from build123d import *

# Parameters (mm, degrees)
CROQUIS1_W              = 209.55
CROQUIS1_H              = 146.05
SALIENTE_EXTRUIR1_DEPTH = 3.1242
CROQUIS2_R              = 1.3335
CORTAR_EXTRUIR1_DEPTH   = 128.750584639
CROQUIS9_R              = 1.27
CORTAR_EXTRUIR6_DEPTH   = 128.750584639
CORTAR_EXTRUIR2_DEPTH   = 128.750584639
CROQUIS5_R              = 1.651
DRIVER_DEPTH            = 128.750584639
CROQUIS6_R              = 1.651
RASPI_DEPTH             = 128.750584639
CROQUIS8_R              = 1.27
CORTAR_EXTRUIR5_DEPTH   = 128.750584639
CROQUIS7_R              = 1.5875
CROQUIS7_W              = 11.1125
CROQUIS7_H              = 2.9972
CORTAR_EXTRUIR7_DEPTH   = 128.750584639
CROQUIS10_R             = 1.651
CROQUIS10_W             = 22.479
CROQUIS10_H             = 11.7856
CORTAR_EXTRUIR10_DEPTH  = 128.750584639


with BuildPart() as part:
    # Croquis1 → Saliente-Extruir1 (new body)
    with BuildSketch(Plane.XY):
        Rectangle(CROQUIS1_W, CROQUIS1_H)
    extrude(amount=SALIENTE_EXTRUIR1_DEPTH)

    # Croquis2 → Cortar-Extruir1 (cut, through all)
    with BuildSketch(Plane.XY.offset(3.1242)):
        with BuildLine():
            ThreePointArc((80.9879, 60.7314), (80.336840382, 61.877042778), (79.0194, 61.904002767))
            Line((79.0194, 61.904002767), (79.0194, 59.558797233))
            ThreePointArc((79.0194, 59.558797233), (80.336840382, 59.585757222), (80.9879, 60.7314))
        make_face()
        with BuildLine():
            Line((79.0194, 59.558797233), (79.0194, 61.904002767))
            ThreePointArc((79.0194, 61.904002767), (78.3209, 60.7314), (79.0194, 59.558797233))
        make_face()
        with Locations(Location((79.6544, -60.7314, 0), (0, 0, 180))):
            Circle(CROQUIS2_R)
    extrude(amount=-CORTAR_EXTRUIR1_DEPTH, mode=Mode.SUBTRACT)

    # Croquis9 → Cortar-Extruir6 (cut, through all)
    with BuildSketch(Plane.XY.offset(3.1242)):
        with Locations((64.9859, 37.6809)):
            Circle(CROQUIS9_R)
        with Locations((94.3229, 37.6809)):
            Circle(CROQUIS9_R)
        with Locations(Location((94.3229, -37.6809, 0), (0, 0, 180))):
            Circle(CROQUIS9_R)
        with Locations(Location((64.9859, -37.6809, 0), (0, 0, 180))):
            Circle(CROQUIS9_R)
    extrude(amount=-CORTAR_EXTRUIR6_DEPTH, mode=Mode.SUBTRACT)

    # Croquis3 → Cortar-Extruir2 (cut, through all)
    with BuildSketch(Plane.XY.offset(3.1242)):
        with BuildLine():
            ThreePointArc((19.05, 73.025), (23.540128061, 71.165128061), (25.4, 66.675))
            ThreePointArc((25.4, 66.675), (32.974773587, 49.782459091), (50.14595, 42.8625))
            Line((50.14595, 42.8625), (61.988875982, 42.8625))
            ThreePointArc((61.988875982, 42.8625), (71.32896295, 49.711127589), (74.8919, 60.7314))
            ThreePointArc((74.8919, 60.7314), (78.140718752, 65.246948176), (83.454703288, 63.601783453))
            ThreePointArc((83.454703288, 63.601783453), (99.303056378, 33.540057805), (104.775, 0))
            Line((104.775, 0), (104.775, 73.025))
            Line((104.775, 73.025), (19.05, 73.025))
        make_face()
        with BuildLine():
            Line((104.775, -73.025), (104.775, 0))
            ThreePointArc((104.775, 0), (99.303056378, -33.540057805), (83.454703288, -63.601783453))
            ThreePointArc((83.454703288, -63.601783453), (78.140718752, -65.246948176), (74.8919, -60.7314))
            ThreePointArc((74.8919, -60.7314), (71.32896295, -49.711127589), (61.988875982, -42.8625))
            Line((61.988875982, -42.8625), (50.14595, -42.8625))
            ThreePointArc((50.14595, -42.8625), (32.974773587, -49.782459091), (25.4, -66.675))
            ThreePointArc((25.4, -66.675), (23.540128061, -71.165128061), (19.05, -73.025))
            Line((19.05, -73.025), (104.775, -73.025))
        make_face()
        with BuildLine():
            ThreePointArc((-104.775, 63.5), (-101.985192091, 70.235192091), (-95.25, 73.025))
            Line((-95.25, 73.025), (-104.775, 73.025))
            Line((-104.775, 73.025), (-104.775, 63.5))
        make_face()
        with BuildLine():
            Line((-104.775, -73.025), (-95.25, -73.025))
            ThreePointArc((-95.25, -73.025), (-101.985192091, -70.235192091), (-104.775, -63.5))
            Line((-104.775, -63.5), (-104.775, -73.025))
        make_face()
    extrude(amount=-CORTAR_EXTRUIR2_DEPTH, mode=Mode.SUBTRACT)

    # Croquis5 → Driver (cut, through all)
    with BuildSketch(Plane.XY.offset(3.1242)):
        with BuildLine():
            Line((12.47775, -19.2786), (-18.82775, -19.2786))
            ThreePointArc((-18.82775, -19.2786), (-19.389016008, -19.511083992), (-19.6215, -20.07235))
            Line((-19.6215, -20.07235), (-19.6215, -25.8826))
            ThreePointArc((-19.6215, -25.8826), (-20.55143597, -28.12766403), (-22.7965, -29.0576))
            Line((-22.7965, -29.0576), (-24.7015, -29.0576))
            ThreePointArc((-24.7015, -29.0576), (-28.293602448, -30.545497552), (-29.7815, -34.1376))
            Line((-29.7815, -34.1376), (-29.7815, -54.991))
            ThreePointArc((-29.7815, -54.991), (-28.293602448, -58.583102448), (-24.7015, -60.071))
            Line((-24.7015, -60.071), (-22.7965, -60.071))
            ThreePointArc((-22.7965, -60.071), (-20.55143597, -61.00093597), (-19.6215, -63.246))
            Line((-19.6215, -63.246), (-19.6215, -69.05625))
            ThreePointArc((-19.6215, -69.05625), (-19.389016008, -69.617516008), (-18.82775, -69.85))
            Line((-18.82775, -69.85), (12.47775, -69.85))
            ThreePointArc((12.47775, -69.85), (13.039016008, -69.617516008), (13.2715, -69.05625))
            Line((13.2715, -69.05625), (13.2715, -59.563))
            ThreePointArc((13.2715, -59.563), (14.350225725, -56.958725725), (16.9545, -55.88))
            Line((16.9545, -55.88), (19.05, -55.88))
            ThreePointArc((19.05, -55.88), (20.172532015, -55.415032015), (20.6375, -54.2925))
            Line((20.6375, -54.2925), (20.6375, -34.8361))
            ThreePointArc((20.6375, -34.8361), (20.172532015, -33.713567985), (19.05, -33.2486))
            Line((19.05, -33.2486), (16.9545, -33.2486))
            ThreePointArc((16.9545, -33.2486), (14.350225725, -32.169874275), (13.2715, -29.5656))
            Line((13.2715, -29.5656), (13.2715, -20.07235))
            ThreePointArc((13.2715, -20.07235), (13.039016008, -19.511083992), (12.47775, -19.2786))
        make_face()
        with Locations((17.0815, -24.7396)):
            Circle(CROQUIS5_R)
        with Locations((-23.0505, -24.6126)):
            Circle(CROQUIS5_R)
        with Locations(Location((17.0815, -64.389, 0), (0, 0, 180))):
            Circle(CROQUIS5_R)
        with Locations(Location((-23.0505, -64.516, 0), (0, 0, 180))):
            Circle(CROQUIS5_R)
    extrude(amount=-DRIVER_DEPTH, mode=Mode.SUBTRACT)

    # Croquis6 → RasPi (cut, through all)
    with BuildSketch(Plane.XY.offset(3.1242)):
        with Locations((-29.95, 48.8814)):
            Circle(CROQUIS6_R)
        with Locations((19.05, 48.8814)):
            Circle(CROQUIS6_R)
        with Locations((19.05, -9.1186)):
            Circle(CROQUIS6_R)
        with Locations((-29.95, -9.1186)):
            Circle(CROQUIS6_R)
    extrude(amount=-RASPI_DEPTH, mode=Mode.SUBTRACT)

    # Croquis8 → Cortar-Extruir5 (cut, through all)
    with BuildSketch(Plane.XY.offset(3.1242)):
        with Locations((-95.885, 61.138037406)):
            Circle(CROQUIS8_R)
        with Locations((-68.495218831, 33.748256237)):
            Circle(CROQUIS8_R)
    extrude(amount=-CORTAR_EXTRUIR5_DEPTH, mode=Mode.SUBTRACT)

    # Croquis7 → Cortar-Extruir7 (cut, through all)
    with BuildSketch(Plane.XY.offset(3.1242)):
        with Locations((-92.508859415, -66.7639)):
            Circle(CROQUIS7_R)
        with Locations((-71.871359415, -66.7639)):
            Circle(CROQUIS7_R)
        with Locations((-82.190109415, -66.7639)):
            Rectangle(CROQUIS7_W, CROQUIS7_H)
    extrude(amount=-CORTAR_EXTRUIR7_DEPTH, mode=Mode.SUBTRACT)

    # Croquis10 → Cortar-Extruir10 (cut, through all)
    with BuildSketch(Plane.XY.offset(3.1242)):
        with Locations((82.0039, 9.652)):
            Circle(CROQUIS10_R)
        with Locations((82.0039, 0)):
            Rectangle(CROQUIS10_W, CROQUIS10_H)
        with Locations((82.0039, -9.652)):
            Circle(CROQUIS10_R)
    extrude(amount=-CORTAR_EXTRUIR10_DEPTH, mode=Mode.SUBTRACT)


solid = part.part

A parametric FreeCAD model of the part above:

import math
import FreeCAD as App
import Part
import Sketcher
from FreeCAD import Vector
Q = App.Units.Quantity

doc = App.newDocument("Part")
body = doc.addObject("PartDesign::Body", "Body")

sketch1 = body.newObject("Sketcher::SketchObject", "Sketch")
sketch1.AttachmentSupport = (doc.getObject("XY_Plane"), [""])
sketch1.MapMode = "FlatFace"
sketch1.addGeometry([
    Part.LineSegment(Vector(-105, 73, 0), Vector(-105, -73, 0)),
    Part.LineSegment(Vector(-105, -73, 0), Vector(105, -73, 0)),
    Part.LineSegment(Vector(105, -73, 0), Vector(105, 73, 0)),
    Part.LineSegment(Vector(105, 73, 0), Vector(-105, 73, 0)),
], False)
sketch1.addConstraint([
    Sketcher.Constraint("Coincident", 0, 2, 1, 1),
    Sketcher.Constraint("Coincident", 1, 2, 2, 1),
    Sketcher.Constraint("Coincident", 2, 2, 3, 1),
    Sketcher.Constraint("Coincident", 3, 2, 0, 1),
    Sketcher.Constraint("Vertical", 0),
    Sketcher.Constraint("Horizontal", 1),
    Sketcher.Constraint("Vertical", 2),
    Sketcher.Constraint("Horizontal", 3),
    Sketcher.Constraint("Symmetric", 0, 2, 2, 2, -1, 1),
    Sketcher.Constraint("DistanceX", 1, 1, 1, 2, Q("8.25 in")),
    Sketcher.Constraint("DistanceY", 0, 2, 0, 1, Q("5.75 in")),
])
pad1 = body.newObject("PartDesign::Pad", "Pad")
pad1.Profile = sketch1
pad1.Length = Q("0.123 in")

sketch2 = body.newObject("Sketcher::SketchObject", "Sketch001")
sketch2.AttachmentSupport = (doc.getObject("XY_Plane"), [""])
sketch2.MapMode = "FlatFace"
sketch2.AttachmentOffset = App.Placement(Vector(0, 0, 0.123 * 25.4), App.Rotation())
sketch2.addGeometry([
    Part.ArcOfCircle(Part.Circle(Vector(79.7, 60.7, 0), Vector(0, 0, 1), 1.3), math.radians(0), math.radians(118)),
    Part.ArcOfCircle(Part.Circle(Vector(79.7, 60.7, 0), Vector(0, 0, 1), 1.3), math.radians(118), math.radians(242)),
    Part.ArcOfCircle(Part.Circle(Vector(79.7, 60.7, 0), Vector(0, 0, 1), 1.3), math.radians(-118), math.radians(0)),
    Part.Circle(Vector(79.7, -60.7, 0), Vector(0, 0, 1), 1.3),
], False)
sketch2.addConstraint([
    Sketcher.Constraint("Tangent", 0, 2, 1, 1),
    Sketcher.Constraint("Tangent", 1, 2, 2, 1),
    Sketcher.Constraint("Tangent", 2, 2, 0, 1),
    Sketcher.Constraint("Equal", 2, 3),
    Sketcher.Constraint("Symmetric", 0, 3, 3, 3, -1),
    Sketcher.Constraint("Horizontal", 1, 3, 2, 2),
    Sketcher.Constraint("Vertical", 0, 2, 1, 2),
    Sketcher.Constraint("Diameter", 3, Q("0.105 in")),
    Sketcher.Constraint("DistanceX", -1, 1, 0, 3, Q("3.136 in")),
    Sketcher.Constraint("DistanceY", -1, 1, 0, 3, Q("2.391 in")),
    Sketcher.Constraint("DistanceX", -1, 1, 0, 2, Q("3.111 in")),
])
pocket1 = body.newObject("PartDesign::Pocket", "Pocket")
pocket1.Profile = sketch2
pocket1.Type = "ThroughAll"

sketch3 = body.newObject("Sketcher::SketchObject", "Sketch002")
sketch3.AttachmentSupport = (doc.getObject("XY_Plane"), [""])
sketch3.MapMode = "FlatFace"
sketch3.AttachmentOffset = App.Placement(Vector(0, 0, 0.123 * 25.4), App.Rotation())
sketch3.addGeometry([
    Part.Circle(Vector(65, 37.7, 0), Vector(0, 0, 1), 1.3),
    Part.Circle(Vector(94.3, 37.7, 0), Vector(0, 0, 1), 1.3),
    Part.Circle(Vector(94.3, -37.7, 0), Vector(0, 0, 1), 1.3),
    Part.Circle(Vector(65, -37.7, 0), Vector(0, 0, 1), 1.3),
], False)
sketch3.addConstraint([
    Sketcher.Constraint("Equal", 0, 1),
    Sketcher.Constraint("Equal", 1, 2),
    Sketcher.Constraint("Equal", 2, 3),
    Sketcher.Constraint("Symmetric", 1, 3, 2, 3, -1),
    Sketcher.Constraint("Symmetric", 0, 3, 3, 3, -1),
    Sketcher.Constraint("Horizontal", 0, 3, 1, 3),
    Sketcher.Constraint("Diameter", 0, Q("0.1 in")),
    Sketcher.Constraint("DistanceX", 0, 3, 1, 3, Q("1.155 in")),
    Sketcher.Constraint("DistanceY", 2, 3, 1, 3, Q("2.967 in")),
    Sketcher.Constraint("DistanceX", -1, 1, 0, 3, Q("2.5585 in")),
])
pocket2 = body.newObject("PartDesign::Pocket", "Pocket001")
pocket2.Profile = sketch3
pocket2.Type = "ThroughAll"

sketch4 = body.newObject("Sketcher::SketchObject", "Sketch003")
sketch4.AttachmentSupport = (doc.getObject("XY_Plane"), [""])
sketch4.MapMode = "FlatFace"
sketch4.AttachmentOffset = App.Placement(Vector(0, 0, 0.123 * 25.4), App.Rotation())
sketch4.addGeometry([
    Part.ArcOfCircle(Part.Circle(Vector(19.1, 66.7, 0), Vector(0, 0, 1), 6.3), math.radians(0), math.radians(90)),
    Part.ArcOfCircle(Part.Circle(Vector(50.1, 67.6, 0), Vector(0, 0, 1), 24.8), math.radians(-178), math.radians(-90)),
    Part.LineSegment(Vector(50.1, 42.9, 0), Vector(62, 42.9, 0)),
    Part.ArcOfCircle(Part.Circle(Vector(56.1, 60.7, 0), Vector(0, 0, 1), 18.8), math.radians(-72), math.radians(0)),
    Part.ArcOfCircle(Part.Circle(Vector(79.7, 60.7, 0), Vector(0, 0, 1), 4.8), math.radians(37), math.radians(180)),
    Part.ArcOfCircle(Part.Circle(Vector(-0.8, 0, 0), Vector(0, 0, 1), 105.5), math.radians(0), math.radians(37)),
    Part.LineSegment(Vector(104.8, 0, 0), Vector(104.8, 73, 0)),
    Part.LineSegment(Vector(104.8, 73, 0), Vector(19.1, 73, 0)),
    Part.LineSegment(Vector(104.8, -73, 0), Vector(104.8, 0, 0)),
    Part.ArcOfCircle(Part.Circle(Vector(-0.8, 0, 0), Vector(0, 0, 1), 105.5), math.radians(-37), math.radians(0)),
    Part.ArcOfCircle(Part.Circle(Vector(79.7, -60.7, 0), Vector(0, 0, 1), 4.8), math.radians(180), math.radians(323)),
    Part.ArcOfCircle(Part.Circle(Vector(56.1, -60.7, 0), Vector(0, 0, 1), 18.8), math.radians(0), math.radians(72)),
    Part.LineSegment(Vector(62, -42.9, 0), Vector(50.1, -42.9, 0)),
    Part.ArcOfCircle(Part.Circle(Vector(50.1, -67.6, 0), Vector(0, 0, 1), 24.8), math.radians(90), math.radians(178)),
    Part.ArcOfCircle(Part.Circle(Vector(19.1, -66.7, 0), Vector(0, 0, 1), 6.3), math.radians(-90), math.radians(0)),
    Part.LineSegment(Vector(19.1, -73, 0), Vector(104.8, -73, 0)),
    Part.ArcOfCircle(Part.Circle(Vector(-95.3, 63.5, 0), Vector(0, 0, 1), 9.5), math.radians(90), math.radians(180)),
    Part.LineSegment(Vector(-95.2, 73, 0), Vector(-104.8, 73, 0)),
    Part.LineSegment(Vector(-104.8, 73, 0), Vector(-104.8, 63.5, 0)),
    Part.LineSegment(Vector(-104.8, -73, 0), Vector(-95.2, -73, 0)),
    Part.ArcOfCircle(Part.Circle(Vector(-95.3, -63.5, 0), Vector(0, 0, 1), 9.5), math.radians(180), math.radians(270)),
    Part.LineSegment(Vector(-104.8, -63.5, 0), Vector(-104.8, -73, 0)),
], False)
sketch4.addConstraint([
    Sketcher.Constraint("Coincident", 0, 1, 1, 1),
    Sketcher.Constraint("Tangent", 1, 2, 2, 1),
    Sketcher.Constraint("Coincident", 2, 2, 3, 1),
    Sketcher.Constraint("Tangent", 3, 2, 4, 2),
    Sketcher.Constraint("Tangent", 4, 1, 5, 2),
    Sketcher.Constraint("Tangent", 5, 1, 6, 1),
    Sketcher.Constraint("Coincident", 6, 2, 7, 1),
    Sketcher.Constraint("Tangent", 7, 2, 0, 2),
    Sketcher.Constraint("Tangent", 8, 2, 9, 2),
    Sketcher.Constraint("Tangent", 9, 1, 10, 2),
    Sketcher.Constraint("Tangent", 10, 1, 11, 1),
    Sketcher.Constraint("Coincident", 11, 2, 12, 1),
    Sketcher.Constraint("Tangent", 12, 2, 13, 1),
    Sketcher.Constraint("Coincident", 13, 2, 14, 2),
    Sketcher.Constraint("Tangent", 14, 1, 15, 1),
    Sketcher.Constraint("Coincident", 15, 2, 8, 1),
    Sketcher.Constraint("Tangent", 16, 1, 17, 1),
    Sketcher.Constraint("Coincident", 17, 2, 18, 1),
    Sketcher.Constraint("Tangent", 18, 2, 16, 2),
    Sketcher.Constraint("Tangent", 19, 2, 20, 2),
    Sketcher.Constraint("Tangent", 20, 1, 21, 1),
    Sketcher.Constraint("Coincident", 21, 2, 19, 1),
    Sketcher.Constraint("Horizontal", 2),
    Sketcher.Constraint("Vertical", 6),
    Sketcher.Constraint("Horizontal", 7),
    Sketcher.Constraint("Vertical", 8),
    Sketcher.Constraint("Horizontal", 12),
    Sketcher.Constraint("Horizontal", 15),
    Sketcher.Constraint("Horizontal", 17),
    Sketcher.Constraint("Vertical", 18),
    Sketcher.Constraint("Horizontal", 19),
    Sketcher.Constraint("Vertical", 21),
    Sketcher.Constraint("Coincident", 9, 3, 5, 3),
    Sketcher.Constraint("Equal", 5, 9),
    Sketcher.Constraint("Equal", 4, 10),
    Sketcher.Constraint("Equal", 3, 11),
    Sketcher.Constraint("Equal", 1, 13),
    Sketcher.Constraint("Equal", 0, 14),
    Sketcher.Constraint("Equal", 16, 20),
    Sketcher.Constraint("Symmetric", 15, 2, 17, 2, -1, 1),
    Sketcher.Constraint("Symmetric", 6, 2, 21, 2, -1, 1),
    Sketcher.Constraint("Symmetric", 4, 3, 10, 3, -1),
    Sketcher.Constraint("Symmetric", 1, 3, 13, 3, -1),
    Sketcher.Constraint("Symmetric", 0, 3, 14, 3, -1),
    Sketcher.Constraint("Horizontal", 3, 3, 4, 3),
    Sketcher.Constraint("Horizontal", 10, 3, 11, 3),
    Sketcher.Constraint("Horizontal", 14, 3, 13, 2),
    Sketcher.Constraint("Radius", 0, Q("0.25 in")),
    Sketcher.Constraint("DistanceX", -1, 1, 0, 1, Q("1 in")),
    Sketcher.Constraint("Radius", 4, Q("0.1875 in")),
    Sketcher.Constraint("Radius", 16, Q("0.375 in")),
    Sketcher.Constraint("DistanceY", 20, 3, 16, 3, Q("5 in")),
    Sketcher.Constraint("DistanceX", 16, 3, 0, 3, Q("4.5 in")),
    Sketcher.Constraint("DistanceY", -1, 1, 3, 3, Q("2.391 in")),
    Sketcher.Constraint("DistanceX", -1, 1, 4, 3, Q("3.136 in")),
    Sketcher.Constraint("DistanceY", -1, 1, 1, 2, Q("1.6875 in")),
    Sketcher.Constraint("Radius", 1, 24.764246),
    Sketcher.Constraint("Radius", 3, 18.824487),
])
pocket3 = body.newObject("PartDesign::Pocket", "Pocket002")
pocket3.Profile = sketch4
pocket3.Type = "ThroughAll"

sketch5 = body.newObject("Sketcher::SketchObject", "Sketch004")
sketch5.AttachmentSupport = (doc.getObject("XY_Plane"), [""])
sketch5.MapMode = "FlatFace"
sketch5.AttachmentOffset = App.Placement(Vector(0, 0, 0.123 * 25.4), App.Rotation())
sketch5.addGeometry([
    Part.LineSegment(Vector(12.5, -19.3, 0), Vector(-18.8, -19.3, 0)),
    Part.ArcOfCircle(Part.Circle(Vector(-18.8, -20.1, 0), Vector(0, 0, 1), 0.8), math.radians(90), math.radians(180)),
    Part.LineSegment(Vector(-19.6, -20.1, 0), Vector(-19.6, -25.9, 0)),
    Part.ArcOfCircle(Part.Circle(Vector(-22.8, -25.9, 0), Vector(0, 0, 1), 3.2), math.radians(-90), math.radians(0)),
    Part.LineSegment(Vector(-22.8, -29.1, 0), Vector(-24.7, -29.1, 0)),
    Part.ArcOfCircle(Part.Circle(Vector(-24.7, -34.1, 0), Vector(0, 0, 1), 5.1), math.radians(90), math.radians(180)),
    Part.LineSegment(Vector(-29.8, -34.1, 0), Vector(-29.8, -55, 0)),
    Part.ArcOfCircle(Part.Circle(Vector(-24.7, -55, 0), Vector(0, 0, 1), 5.1), math.radians(-180), math.radians(-90)),
    Part.LineSegment(Vector(-24.7, -60.1, 0), Vector(-22.8, -60.1, 0)),
    Part.ArcOfCircle(Part.Circle(Vector(-22.8, -63.2, 0), Vector(0, 0, 1), 3.2), math.radians(0), math.radians(90)),
    Part.LineSegment(Vector(-19.6, -63.2, 0), Vector(-19.6, -69.1, 0)),
    Part.ArcOfCircle(Part.Circle(Vector(-18.8, -69.1, 0), Vector(0, 0, 1), 0.8), math.radians(180), math.radians(270)),
    Part.LineSegment(Vector(-18.8, -69.8, 0), Vector(12.5, -69.8, 0)),
    Part.ArcOfCircle(Part.Circle(Vector(12.5, -69.1, 0), Vector(0, 0, 1), 0.8), math.radians(-90), math.radians(0)),
    Part.LineSegment(Vector(13.3, -69.1, 0), Vector(13.3, -59.6, 0)),
    Part.ArcOfCircle(Part.Circle(Vector(17, -59.6, 0), Vector(0, 0, 1), 3.7), math.radians(90), math.radians(180)),
    Part.LineSegment(Vector(17, -55.9, 0), Vector(19.1, -55.9, 0)),
    Part.ArcOfCircle(Part.Circle(Vector(19.1, -54.3, 0), Vector(0, 0, 1), 1.6), math.radians(-90), math.radians(0)),
    Part.LineSegment(Vector(20.6, -54.3, 0), Vector(20.6, -34.8, 0)),
    Part.ArcOfCircle(Part.Circle(Vector(19.1, -34.8, 0), Vector(0, 0, 1), 1.6), math.radians(0), math.radians(90)),
    Part.LineSegment(Vector(19.1, -33.2, 0), Vector(17, -33.2, 0)),
    Part.ArcOfCircle(Part.Circle(Vector(17, -29.6, 0), Vector(0, 0, 1), 3.7), math.radians(180), math.radians(270)),
    Part.LineSegment(Vector(13.3, -29.6, 0), Vector(13.3, -20.1, 0)),
    Part.ArcOfCircle(Part.Circle(Vector(12.5, -20.1, 0), Vector(0, 0, 1), 0.8), math.radians(0), math.radians(90)),
    Part.Circle(Vector(17.1, -24.7, 0), Vector(0, 0, 1), 1.7),
    Part.Circle(Vector(-23.1, -24.6, 0), Vector(0, 0, 1), 1.7),
    Part.Circle(Vector(17.1, -64.4, 0), Vector(0, 0, 1), 1.7),
    Part.Circle(Vector(-23.1, -64.5, 0), Vector(0, 0, 1), 1.7),
], False)
sketch5.addConstraint([
    Sketcher.Constraint("Tangent", 0, 2, 1, 1),
    Sketcher.Constraint("Tangent", 1, 2, 2, 1),
    Sketcher.Constraint("Tangent", 2, 2, 3, 2),
    Sketcher.Constraint("Tangent", 3, 1, 4, 1),
    Sketcher.Constraint("Tangent", 4, 2, 5, 1),
    Sketcher.Constraint("Tangent", 5, 2, 6, 1),
    Sketcher.Constraint("Tangent", 6, 2, 7, 1),
    Sketcher.Constraint("Tangent", 7, 2, 8, 1),
    Sketcher.Constraint("Tangent", 8, 2, 9, 2),
    Sketcher.Constraint("Tangent", 9, 1, 10, 1),
    Sketcher.Constraint("Tangent", 10, 2, 11, 1),
    Sketcher.Constraint("Tangent", 11, 2, 12, 1),
    Sketcher.Constraint("Tangent", 12, 2, 13, 1),
    Sketcher.Constraint("Tangent", 13, 2, 14, 1),
    Sketcher.Constraint("Tangent", 14, 2, 15, 2),
    Sketcher.Constraint("Tangent", 15, 1, 16, 1),
    Sketcher.Constraint("Tangent", 16, 2, 17, 1),
    Sketcher.Constraint("Tangent", 17, 2, 18, 1),
    Sketcher.Constraint("Tangent", 18, 2, 19, 1),
    Sketcher.Constraint("Tangent", 19, 2, 20, 1),
    Sketcher.Constraint("Tangent", 20, 2, 21, 2),
    Sketcher.Constraint("Tangent", 21, 1, 22, 1),
    Sketcher.Constraint("Tangent", 22, 2, 23, 1),
    Sketcher.Constraint("Tangent", 23, 2, 0, 1),
    Sketcher.Constraint("Horizontal", 0),
    Sketcher.Constraint("Vertical", 2),
    Sketcher.Constraint("Horizontal", 4),
    Sketcher.Constraint("Vertical", 6),
    Sketcher.Constraint("Horizontal", 8),
    Sketcher.Constraint("Vertical", 10),
    Sketcher.Constraint("Horizontal", 12),
    Sketcher.Constraint("Vertical", 14),
    Sketcher.Constraint("Horizontal", 16),
    Sketcher.Constraint("Vertical", 18),
    Sketcher.Constraint("Horizontal", 20),
    Sketcher.Constraint("Vertical", 22),
    Sketcher.Constraint("Equal", 5, 7),
    Sketcher.Constraint("Equal", 3, 9),
    Sketcher.Constraint("Equal", 1, 11),
    Sketcher.Constraint("Equal", 11, 13),
    Sketcher.Constraint("Equal", 17, 19),
    Sketcher.Constraint("Equal", 15, 21),
    Sketcher.Constraint("Equal", 13, 23),
    Sketcher.Constraint("Equal", 24, 25),
    Sketcher.Constraint("Equal", 25, 26),
    Sketcher.Constraint("Equal", 26, 27),
    Sketcher.Constraint("Vertical", 3, 3, 9, 3),
    Sketcher.Constraint("Vertical", 15, 3, 21, 3),
    Sketcher.Constraint("Vertical", 24, 3, 26, 3),
    Sketcher.Constraint("Vertical", 25, 3, 27, 3),
    Sketcher.Constraint("Equal", 2, 10),
    Sketcher.Constraint("Equal", 14, 22),
    Sketcher.Constraint("Radius", 5, Q("0.2 in")),
    Sketcher.Constraint("Diameter", 24, Q("0.13 in")),
    Sketcher.Constraint("Radius", 1, Q("0.03125 in")),
    Sketcher.Constraint("Radius", 3, Q("0.125 in")),
    Sketcher.Constraint("Radius", 15, Q("0.145 in")),
    Sketcher.Constraint("Radius", 17, Q("0.0625 in")),
    Sketcher.Constraint("DistanceY", 15, 1, -1, 1, Q("2.2 in")),
    Sketcher.Constraint("DistanceX", 5, 3, 1, 2, Q("0.2 in")),
    Sketcher.Constraint("DistanceY", 6, 2, 6, 1, Q("0.821 in")),
    Sketcher.Constraint("DistanceY", 18, 1, 18, 2, Q("0.766 in")),
    Sketcher.Constraint("DistanceX", -1, 1, 17, 3, Q("0.75 in")),
    Sketcher.Constraint("DistanceY", 27, 3, -1, 1, Q("2.54 in")),
    Sketcher.Constraint("DistanceY", 11, 2, -1, 1, Q("2.75 in")),
    Sketcher.Constraint("DistanceX", 7, 3, 15, 3, Q("1.64 in")),
    Sketcher.Constraint("DistanceY", 21, 3, 24, 3, Q("0.19 in")),
    Sketcher.Constraint("DistanceX", 25, 3, 3, 3, Q("0.01 in")),
    Sketcher.Constraint("DistanceY", 3, 3, 25, 3, Q("0.05 in")),
    Sketcher.Constraint("DistanceY", 26, 3, 15, 3, Q("0.19 in")),
    Sketcher.Constraint("DistanceX", 13, 2, 26, 3, Q("0.15 in")),
    Sketcher.Constraint("DistanceX", 14, 2, 17, 2, Q("0.29 in")),
])
pocket4 = body.newObject("PartDesign::Pocket", "Pocket003")
pocket4.Profile = sketch5
pocket4.Type = "ThroughAll"

sketch6 = body.newObject("Sketcher::SketchObject", "Sketch005")
sketch6.AttachmentSupport = (doc.getObject("XY_Plane"), [""])
sketch6.MapMode = "FlatFace"
sketch6.AttachmentOffset = App.Placement(Vector(0, 0, 0.123 * 25.4), App.Rotation())
sketch6.addGeometry([
    Part.Circle(Vector(-29.9, 48.9, 0), Vector(0, 0, 1), 1.7),
    Part.Circle(Vector(19.1, 48.9, 0), Vector(0, 0, 1), 1.7),
    Part.Circle(Vector(19.1, -9.1, 0), Vector(0, 0, 1), 1.7),
    Part.Circle(Vector(-29.9, -9.1, 0), Vector(0, 0, 1), 1.7),
], False)
sketch6.addConstraint([
    Sketcher.Constraint("Equal", 0, 1),
    Sketcher.Constraint("Equal", 1, 2),
    Sketcher.Constraint("Equal", 2, 3),
    Sketcher.Constraint("Horizontal", 0, 3, 1, 3),
    Sketcher.Constraint("Horizontal", 2, 3, 3, 3),
    Sketcher.Constraint("Vertical", 1, 3, 2, 3),
    Sketcher.Constraint("Vertical", 0, 3, 3, 3),
    Sketcher.Constraint("Diameter", 0, Q("0.13 in")),
    Sketcher.Constraint("DistanceX", -1, 1, 1, 3, Q("0.75 in")),
    Sketcher.Constraint("DistanceY", 2, 3, -1, 1, Q("0.359 in")),
    Sketcher.Constraint("DistanceX", 0, 3, -1, 1, 29.95),
    Sketcher.Constraint("DistanceY", -1, 1, 0, 3, 48.8814),
])
pocket5 = body.newObject("PartDesign::Pocket", "Pocket004")
pocket5.Profile = sketch6
pocket5.Type = "ThroughAll"

sketch7 = body.newObject("Sketcher::SketchObject", "Sketch006")
sketch7.AttachmentSupport = (doc.getObject("XY_Plane"), [""])
sketch7.MapMode = "FlatFace"
sketch7.AttachmentOffset = App.Placement(Vector(0, 0, 0.123 * 25.4), App.Rotation())
sketch7.addGeometry([
    Part.Circle(Vector(-95.9, 61.1, 0), Vector(0, 0, 1), 1.3),
    Part.Circle(Vector(-68.5, 33.7, 0), Vector(0, 0, 1), 1.3),
], False)
sketch7.addConstraint([
    Sketcher.Constraint("Equal", 0, 1),
    Sketcher.Constraint("Diameter", 0, Q("0.1 in")),
    Sketcher.Constraint("DistanceX", 0, 3, -1, 1, Q("3.775 in")),
    Sketcher.Constraint("DistanceX", 1, 3, -1, 1, 68.495219),
    Sketcher.Constraint("DistanceY", 1, 3, 0, 3, 27.389781),
    Sketcher.Constraint("DistanceY", -1, 1, 0, 3, 61.138037),
])
pocket6 = body.newObject("PartDesign::Pocket", "Pocket005")
pocket6.Profile = sketch7
pocket6.Type = "ThroughAll"

sketch8 = body.newObject("Sketcher::SketchObject", "Sketch007")
sketch8.AttachmentSupport = (doc.getObject("XY_Plane"), [""])
sketch8.MapMode = "FlatFace"
sketch8.AttachmentOffset = App.Placement(Vector(0, 0, 0.123 * 25.4), App.Rotation())
sketch8.addGeometry([
    Part.Circle(Vector(-92.5, -66.8, 0), Vector(0, 0, 1), 1.6),
    Part.Circle(Vector(-71.9, -66.8, 0), Vector(0, 0, 1), 1.6),
    Part.LineSegment(Vector(-87.7, -65.3, 0), Vector(-87.7, -68.3, 0)),
    Part.LineSegment(Vector(-87.7, -68.3, 0), Vector(-76.6, -68.3, 0)),
    Part.LineSegment(Vector(-76.6, -68.3, 0), Vector(-76.6, -65.3, 0)),
    Part.LineSegment(Vector(-76.6, -65.3, 0), Vector(-87.7, -65.3, 0)),
], False)
sketch8.addConstraint([
    Sketcher.Constraint("Coincident", 2, 2, 3, 1),
    Sketcher.Constraint("Coincident", 3, 2, 4, 1),
    Sketcher.Constraint("Coincident", 4, 2, 5, 1),
    Sketcher.Constraint("Coincident", 5, 2, 2, 1),
    Sketcher.Constraint("Vertical", 2),
    Sketcher.Constraint("Horizontal", 3),
    Sketcher.Constraint("Vertical", 4),
    Sketcher.Constraint("Horizontal", 5),
    Sketcher.Constraint("Equal", 0, 1),
    Sketcher.Constraint("Horizontal", 0, 3, 1, 3),
    Sketcher.Constraint("Diameter", 0, Q("0.125 in")),
    Sketcher.Constraint("DistanceX", 3, 1, 3, 2, Q("0.4375 in")),
    Sketcher.Constraint("DistanceY", 2, 2, 2, 1, Q("0.118 in")),
    Sketcher.Constraint("DistanceY", 2, 2, -1, 1, Q("2.6875 in")),
    Sketcher.Constraint("DistanceX", 0, 3, 1, 3, Q("0.8125 in")),
    Sketcher.Constraint("DistanceX", 0, 3, 2, 2, Q("0.1875 in")),
    Sketcher.Constraint("DistanceY", 2, 2, 0, 3, Q("0.059 in")),
    Sketcher.Constraint("DistanceX", 0, 3, -1, 1, 92.508859),
])
pocket7 = body.newObject("PartDesign::Pocket", "Pocket006")
pocket7.Profile = sketch8
pocket7.Type = "ThroughAll"

sketch9 = body.newObject("Sketcher::SketchObject", "Sketch008")
sketch9.AttachmentSupport = (doc.getObject("XY_Plane"), [""])
sketch9.MapMode = "FlatFace"
sketch9.AttachmentOffset = App.Placement(Vector(0, 0, 0.123 * 25.4), App.Rotation())
sketch9.addGeometry([
    Part.Circle(Vector(82, 9.7, 0), Vector(0, 0, 1), 1.7),
    Part.LineSegment(Vector(70.8, 5.9, 0), Vector(70.8, -5.9, 0)),
    Part.LineSegment(Vector(70.8, -5.9, 0), Vector(93.2, -5.9, 0)),
    Part.LineSegment(Vector(93.2, -5.9, 0), Vector(93.2, 5.9, 0)),
    Part.LineSegment(Vector(93.2, 5.9, 0), Vector(70.8, 5.9, 0)),
    Part.Circle(Vector(82, -9.7, 0), Vector(0, 0, 1), 1.7),
], False)
sketch9.addConstraint([
    Sketcher.Constraint("Coincident", 1, 2, 2, 1),
    Sketcher.Constraint("Coincident", 2, 2, 3, 1),
    Sketcher.Constraint("Coincident", 3, 2, 4, 1),
    Sketcher.Constraint("Coincident", 4, 2, 1, 1),
    Sketcher.Constraint("Vertical", 1),
    Sketcher.Constraint("Horizontal", 2),
    Sketcher.Constraint("Vertical", 3),
    Sketcher.Constraint("Horizontal", 4),
    Sketcher.Constraint("Equal", 0, 5),
    Sketcher.Constraint("Symmetric", 0, 3, 5, 3, -1),
    Sketcher.Constraint("Diameter", 0, Q("0.13 in")),
    Sketcher.Constraint("DistanceX", 2, 1, 2, 2, Q("0.885 in")),
    Sketcher.Constraint("DistanceY", 1, 2, 1, 1, Q("0.464 in")),
    Sketcher.Constraint("DistanceY", -1, 1, 0, 3, Q("0.38 in")),
    Sketcher.Constraint("DistanceX", -1, 1, 1, 2, Q("2.786 in")),
    Sketcher.Constraint("DistanceY", 1, 2, -1, 1, Q("0.232 in")),
    Sketcher.Constraint("DistanceX", -1, 1, 0, 3, Q("3.2285 in")),
])
pocket8 = body.newObject("PartDesign::Pocket", "Pocket007")
pocket8.Profile = sketch9
pocket8.Type = "ThroughAll"

doc.recompute()
